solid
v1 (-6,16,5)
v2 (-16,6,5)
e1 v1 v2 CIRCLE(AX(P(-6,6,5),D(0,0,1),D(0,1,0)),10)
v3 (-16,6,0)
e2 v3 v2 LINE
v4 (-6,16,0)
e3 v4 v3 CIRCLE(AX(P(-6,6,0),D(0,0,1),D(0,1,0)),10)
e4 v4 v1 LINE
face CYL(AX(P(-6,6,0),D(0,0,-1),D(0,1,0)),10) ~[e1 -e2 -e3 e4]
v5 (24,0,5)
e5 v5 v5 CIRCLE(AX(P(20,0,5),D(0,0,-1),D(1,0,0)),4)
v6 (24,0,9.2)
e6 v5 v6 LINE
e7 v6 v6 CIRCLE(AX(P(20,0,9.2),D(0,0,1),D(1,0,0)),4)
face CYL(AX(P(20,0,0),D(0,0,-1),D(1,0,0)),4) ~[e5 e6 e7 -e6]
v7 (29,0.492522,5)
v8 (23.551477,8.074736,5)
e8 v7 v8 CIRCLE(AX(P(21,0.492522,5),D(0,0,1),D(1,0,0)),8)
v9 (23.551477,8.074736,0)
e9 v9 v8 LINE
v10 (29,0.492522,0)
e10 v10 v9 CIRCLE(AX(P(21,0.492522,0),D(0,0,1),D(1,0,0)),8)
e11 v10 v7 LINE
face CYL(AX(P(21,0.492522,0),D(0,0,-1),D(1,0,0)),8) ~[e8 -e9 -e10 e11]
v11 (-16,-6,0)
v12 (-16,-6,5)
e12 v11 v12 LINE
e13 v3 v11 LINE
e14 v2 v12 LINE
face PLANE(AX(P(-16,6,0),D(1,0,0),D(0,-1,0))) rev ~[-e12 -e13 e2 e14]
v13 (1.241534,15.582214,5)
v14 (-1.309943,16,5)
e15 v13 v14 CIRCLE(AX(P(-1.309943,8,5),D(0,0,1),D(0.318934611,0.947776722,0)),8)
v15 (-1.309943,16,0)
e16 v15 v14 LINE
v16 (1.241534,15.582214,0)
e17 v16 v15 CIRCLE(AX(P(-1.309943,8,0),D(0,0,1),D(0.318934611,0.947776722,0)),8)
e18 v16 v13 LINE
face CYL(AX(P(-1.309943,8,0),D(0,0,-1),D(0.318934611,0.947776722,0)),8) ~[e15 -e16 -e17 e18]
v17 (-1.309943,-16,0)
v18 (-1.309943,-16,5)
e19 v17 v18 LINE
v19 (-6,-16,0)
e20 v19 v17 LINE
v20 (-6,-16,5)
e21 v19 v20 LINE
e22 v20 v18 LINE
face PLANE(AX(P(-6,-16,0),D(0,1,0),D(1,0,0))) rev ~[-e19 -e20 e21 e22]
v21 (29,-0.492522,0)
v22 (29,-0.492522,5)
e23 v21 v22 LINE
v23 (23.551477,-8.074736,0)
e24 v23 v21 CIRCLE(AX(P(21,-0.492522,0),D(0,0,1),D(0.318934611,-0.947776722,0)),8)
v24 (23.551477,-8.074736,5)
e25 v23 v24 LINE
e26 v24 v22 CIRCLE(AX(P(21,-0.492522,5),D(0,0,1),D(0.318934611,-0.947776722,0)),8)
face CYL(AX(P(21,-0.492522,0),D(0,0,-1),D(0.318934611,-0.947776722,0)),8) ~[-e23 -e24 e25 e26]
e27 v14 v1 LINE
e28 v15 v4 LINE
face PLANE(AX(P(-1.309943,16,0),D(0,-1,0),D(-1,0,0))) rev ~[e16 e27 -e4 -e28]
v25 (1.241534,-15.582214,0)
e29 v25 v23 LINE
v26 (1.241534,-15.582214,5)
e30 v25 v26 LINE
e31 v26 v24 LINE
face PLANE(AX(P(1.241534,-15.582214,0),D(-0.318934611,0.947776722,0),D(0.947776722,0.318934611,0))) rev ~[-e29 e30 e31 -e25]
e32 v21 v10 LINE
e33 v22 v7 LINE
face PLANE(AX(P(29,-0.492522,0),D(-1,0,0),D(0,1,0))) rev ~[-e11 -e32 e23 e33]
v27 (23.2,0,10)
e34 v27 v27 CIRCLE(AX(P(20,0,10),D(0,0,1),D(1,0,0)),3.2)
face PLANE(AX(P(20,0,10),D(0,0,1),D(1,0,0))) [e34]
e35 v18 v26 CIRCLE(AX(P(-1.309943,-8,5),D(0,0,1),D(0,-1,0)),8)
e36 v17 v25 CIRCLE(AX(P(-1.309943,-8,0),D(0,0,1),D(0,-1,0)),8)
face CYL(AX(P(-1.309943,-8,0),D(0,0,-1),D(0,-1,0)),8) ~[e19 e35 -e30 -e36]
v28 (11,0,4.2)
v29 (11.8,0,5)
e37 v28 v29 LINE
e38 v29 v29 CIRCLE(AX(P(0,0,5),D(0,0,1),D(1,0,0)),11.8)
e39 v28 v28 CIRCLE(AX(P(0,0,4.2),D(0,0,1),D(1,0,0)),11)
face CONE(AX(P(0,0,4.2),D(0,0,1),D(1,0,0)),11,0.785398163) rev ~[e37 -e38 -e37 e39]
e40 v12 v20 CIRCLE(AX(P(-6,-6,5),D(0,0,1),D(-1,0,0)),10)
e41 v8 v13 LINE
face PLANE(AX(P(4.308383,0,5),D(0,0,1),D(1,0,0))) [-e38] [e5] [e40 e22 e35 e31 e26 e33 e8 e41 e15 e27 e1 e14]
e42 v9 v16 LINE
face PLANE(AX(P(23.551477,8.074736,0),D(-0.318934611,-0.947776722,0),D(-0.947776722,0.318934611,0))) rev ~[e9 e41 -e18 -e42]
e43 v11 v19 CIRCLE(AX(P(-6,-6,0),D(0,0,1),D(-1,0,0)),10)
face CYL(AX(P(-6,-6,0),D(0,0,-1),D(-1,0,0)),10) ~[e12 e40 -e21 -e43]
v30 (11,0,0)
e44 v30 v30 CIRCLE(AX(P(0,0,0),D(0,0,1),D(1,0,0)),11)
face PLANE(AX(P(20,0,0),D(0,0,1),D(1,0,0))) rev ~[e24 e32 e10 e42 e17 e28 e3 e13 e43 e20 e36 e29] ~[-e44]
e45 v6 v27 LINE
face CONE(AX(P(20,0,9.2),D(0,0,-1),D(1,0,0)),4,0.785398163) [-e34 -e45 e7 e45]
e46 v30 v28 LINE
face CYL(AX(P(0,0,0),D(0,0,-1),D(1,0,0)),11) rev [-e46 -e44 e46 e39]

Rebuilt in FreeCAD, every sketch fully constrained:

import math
import FreeCAD as App
import Part
import Sketcher
from FreeCAD import Vector
Q = App.Units.Quantity


def edges_at(feature, points):
    """Names of the edges that pass closest to the given points."""
    edges = feature.Shape.Edges
    near = lambda p: min(range(len(edges)), key=lambda i: edges[i].distToShape(Part.Vertex(*p))[0])
    return sorted({f"Edge{near(p) + 1}" for p in points})

doc = App.newDocument("Part")
body = doc.addObject("PartDesign::Body", "Body")

sketch1 = body.newObject("Sketcher::SketchObject", "Sketch")
sketch1.AttachmentSupport = (doc.getObject("XY_Plane"), [""])
sketch1.MapMode = "FlatFace"
sketch1.addGeometry(Part.LineSegment(Vector(-1.3, 16, 0), Vector(-6, 16, 0)), False)
sketch1.addGeometry(Part.ArcOfCircle(Part.Circle(Vector(-6, 6, 0), Vector(0, 0, 1), 10), math.radians(90), math.radians(180)), False)
sketch1.addGeometry(Part.LineSegment(Vector(-16, 6, 0), Vector(-16, -6, 0)), False)
sketch1.addGeometry(Part.ArcOfCircle(Part.Circle(Vector(-6, -6, 0), Vector(0, 0, 1), 10), math.radians(180), math.radians(270)), False)
sketch1.addGeometry(Part.LineSegment(Vector(-6, -16, 0), Vector(-1.3, -16, 0)), False)
sketch1.addGeometry(Part.ArcOfCircle(Part.Circle(Vector(-1.3, -8, 0), Vector(0, 0, 1), 8), math.radians(-90), math.radians(-71.4)), False)
sketch1.addGeometry(Part.LineSegment(Vector(1.2, -15.6, 0), Vector(23.6, -8.1, 0)), False)
sketch1.addGeometry(Part.ArcOfCircle(Part.Circle(Vector(21, -0.5, 0), Vector(0, 0, 1), 8), math.radians(-71), math.radians(0)), False)
sketch1.addGeometry(Part.LineSegment(Vector(29, -0.5, 0), Vector(29, 0.5, 0)), False)
sketch1.addGeometry(Part.ArcOfCircle(Part.Circle(Vector(21, 0.5, 0), Vector(0, 0, 1), 8), math.radians(0), math.radians(71)), False)
sketch1.addGeometry(Part.LineSegment(Vector(23.6, 8.1, 0), Vector(1.2, 15.6, 0)), False)
sketch1.addGeometry(Part.ArcOfCircle(Part.Circle(Vector(-1.3, 8, 0), Vector(0, 0, 1), 8), math.radians(71.4), math.radians(90)), False)
sketch1.addGeometry(Part.Circle(Vector(0, 0, 0), Vector(0, 0, 1), 11), False)
sketch1.addConstraint(Sketcher.Constraint("Tangent", 0, 2, 1, 1))
sketch1.addConstraint(Sketcher.Constraint("Tangent", 1, 2, 2, 1))
sketch1.addConstraint(Sketcher.Constraint("Tangent", 2, 2, 3, 1))
sketch1.addConstraint(Sketcher.Constraint("Tangent", 3, 2, 4, 1))
sketch1.addConstraint(Sketcher.Constraint("Tangent", 4, 2, 5, 1))
sketch1.addConstraint(Sketcher.Constraint("Tangent", 5, 2, 6, 1))
sketch1.addConstraint(Sketcher.Constraint("Tangent", 6, 2, 7, 1))
sketch1.addConstraint(Sketcher.Constraint("Tangent", 7, 2, 8, 1))
sketch1.addConstraint(Sketcher.Constraint("Tangent", 8, 2, 9, 1))
sketch1.addConstraint(Sketcher.Constraint("Tangent", 9, 2, 10, 1))
sketch1.addConstraint(Sketcher.Constraint("Tangent", 10, 2, 11, 1))
sketch1.addConstraint(Sketcher.Constraint("Tangent", 11, 2, 0, 1))
sketch1.addConstraint(Sketcher.Constraint("Horizontal", 0))
sketch1.addConstraint(Sketcher.Constraint("Vertical", 2))
sketch1.addConstraint(Sketcher.Constraint("Horizontal", 4))
sketch1.addConstraint(Sketcher.Constraint("Vertical", 8))
sketch1.addConstraint(Sketcher.Constraint("Coincident", 12, 3, -1, 1))
sketch1.addConstraint(Sketcher.Constraint("Equal", 1, 3))
sketch1.addConstraint(Sketcher.Constraint("Equal", 5, 7))
sketch1.addConstraint(Sketcher.Constraint("Equal", 7, 9))
sketch1.addConstraint(Sketcher.Constraint("Equal", 9, 11))
sketch1.addConstraint(Sketcher.Constraint("Symmetric", 5, 3, 11, 3, -1))
sketch1.addConstraint(Sketcher.Constraint("Vertical", 6, 2, 9, 2))
sketch1.addConstraint(Sketcher.Constraint("Diameter", 12, Q("22 mm")))
sketch1.addConstraint(Sketcher.Constraint("Radius", 1, Q("10 mm")))
sketch1.addConstraint(Sketcher.Constraint("Radius", 5, Q("8 mm")))
sketch1.addConstraint(Sketcher.Constraint("DistanceY", 2, 2, 2, 1, Q("12 mm")))
sketch1.addConstraint(Sketcher.Constraint("DistanceX", 1, 3, -1, 1, Q("6 mm")))
sketch1.addConstraint(Sketcher.Constraint("DistanceX", -1, 1, 7, 3, Q("21 mm")))
sketch1.addConstraint(Sketcher.Constraint("Distance", 6, Q("23.539239 mm")))
sketch1.addConstraint(Sketcher.Constraint("DistanceX", 0, 2, 0, 1, Q("4.690057 mm")))
pad1 = body.newObject("PartDesign::Pad", "Pad")
pad1.Profile = sketch1
pad1.Length = 5

sketch2 = body.newObject("Sketcher::SketchObject", "Sketch001")
sketch2.AttachmentSupport = (doc.getObject("XY_Plane"), [""])
sketch2.MapMode = "FlatFace"
sketch2.addGeometry(Part.Circle(Vector(20, 0, 0), Vector(0, 0, 1), 4), False)
sketch2.addConstraint(Sketcher.Constraint("PointOnObject", 0, 3, -1))
sketch2.addConstraint(Sketcher.Constraint("Diameter", 0, Q("8 mm")))
sketch2.addConstraint(Sketcher.Constraint("DistanceX", -1, 1, 0, 3, Q("20 mm")))
pad2 = body.newObject("PartDesign::Pad", "Pad001")
pad2.Profile = sketch2
pad2.Length = 10
doc.recompute()

chamfer = body.newObject("PartDesign::Chamfer", "Chamfer")
chamfer.Base = (pad2, edges_at(pad2, [(16, 0, 10), (-11, 0, 5)]))
chamfer.Size = 0.8

doc.recompute()
